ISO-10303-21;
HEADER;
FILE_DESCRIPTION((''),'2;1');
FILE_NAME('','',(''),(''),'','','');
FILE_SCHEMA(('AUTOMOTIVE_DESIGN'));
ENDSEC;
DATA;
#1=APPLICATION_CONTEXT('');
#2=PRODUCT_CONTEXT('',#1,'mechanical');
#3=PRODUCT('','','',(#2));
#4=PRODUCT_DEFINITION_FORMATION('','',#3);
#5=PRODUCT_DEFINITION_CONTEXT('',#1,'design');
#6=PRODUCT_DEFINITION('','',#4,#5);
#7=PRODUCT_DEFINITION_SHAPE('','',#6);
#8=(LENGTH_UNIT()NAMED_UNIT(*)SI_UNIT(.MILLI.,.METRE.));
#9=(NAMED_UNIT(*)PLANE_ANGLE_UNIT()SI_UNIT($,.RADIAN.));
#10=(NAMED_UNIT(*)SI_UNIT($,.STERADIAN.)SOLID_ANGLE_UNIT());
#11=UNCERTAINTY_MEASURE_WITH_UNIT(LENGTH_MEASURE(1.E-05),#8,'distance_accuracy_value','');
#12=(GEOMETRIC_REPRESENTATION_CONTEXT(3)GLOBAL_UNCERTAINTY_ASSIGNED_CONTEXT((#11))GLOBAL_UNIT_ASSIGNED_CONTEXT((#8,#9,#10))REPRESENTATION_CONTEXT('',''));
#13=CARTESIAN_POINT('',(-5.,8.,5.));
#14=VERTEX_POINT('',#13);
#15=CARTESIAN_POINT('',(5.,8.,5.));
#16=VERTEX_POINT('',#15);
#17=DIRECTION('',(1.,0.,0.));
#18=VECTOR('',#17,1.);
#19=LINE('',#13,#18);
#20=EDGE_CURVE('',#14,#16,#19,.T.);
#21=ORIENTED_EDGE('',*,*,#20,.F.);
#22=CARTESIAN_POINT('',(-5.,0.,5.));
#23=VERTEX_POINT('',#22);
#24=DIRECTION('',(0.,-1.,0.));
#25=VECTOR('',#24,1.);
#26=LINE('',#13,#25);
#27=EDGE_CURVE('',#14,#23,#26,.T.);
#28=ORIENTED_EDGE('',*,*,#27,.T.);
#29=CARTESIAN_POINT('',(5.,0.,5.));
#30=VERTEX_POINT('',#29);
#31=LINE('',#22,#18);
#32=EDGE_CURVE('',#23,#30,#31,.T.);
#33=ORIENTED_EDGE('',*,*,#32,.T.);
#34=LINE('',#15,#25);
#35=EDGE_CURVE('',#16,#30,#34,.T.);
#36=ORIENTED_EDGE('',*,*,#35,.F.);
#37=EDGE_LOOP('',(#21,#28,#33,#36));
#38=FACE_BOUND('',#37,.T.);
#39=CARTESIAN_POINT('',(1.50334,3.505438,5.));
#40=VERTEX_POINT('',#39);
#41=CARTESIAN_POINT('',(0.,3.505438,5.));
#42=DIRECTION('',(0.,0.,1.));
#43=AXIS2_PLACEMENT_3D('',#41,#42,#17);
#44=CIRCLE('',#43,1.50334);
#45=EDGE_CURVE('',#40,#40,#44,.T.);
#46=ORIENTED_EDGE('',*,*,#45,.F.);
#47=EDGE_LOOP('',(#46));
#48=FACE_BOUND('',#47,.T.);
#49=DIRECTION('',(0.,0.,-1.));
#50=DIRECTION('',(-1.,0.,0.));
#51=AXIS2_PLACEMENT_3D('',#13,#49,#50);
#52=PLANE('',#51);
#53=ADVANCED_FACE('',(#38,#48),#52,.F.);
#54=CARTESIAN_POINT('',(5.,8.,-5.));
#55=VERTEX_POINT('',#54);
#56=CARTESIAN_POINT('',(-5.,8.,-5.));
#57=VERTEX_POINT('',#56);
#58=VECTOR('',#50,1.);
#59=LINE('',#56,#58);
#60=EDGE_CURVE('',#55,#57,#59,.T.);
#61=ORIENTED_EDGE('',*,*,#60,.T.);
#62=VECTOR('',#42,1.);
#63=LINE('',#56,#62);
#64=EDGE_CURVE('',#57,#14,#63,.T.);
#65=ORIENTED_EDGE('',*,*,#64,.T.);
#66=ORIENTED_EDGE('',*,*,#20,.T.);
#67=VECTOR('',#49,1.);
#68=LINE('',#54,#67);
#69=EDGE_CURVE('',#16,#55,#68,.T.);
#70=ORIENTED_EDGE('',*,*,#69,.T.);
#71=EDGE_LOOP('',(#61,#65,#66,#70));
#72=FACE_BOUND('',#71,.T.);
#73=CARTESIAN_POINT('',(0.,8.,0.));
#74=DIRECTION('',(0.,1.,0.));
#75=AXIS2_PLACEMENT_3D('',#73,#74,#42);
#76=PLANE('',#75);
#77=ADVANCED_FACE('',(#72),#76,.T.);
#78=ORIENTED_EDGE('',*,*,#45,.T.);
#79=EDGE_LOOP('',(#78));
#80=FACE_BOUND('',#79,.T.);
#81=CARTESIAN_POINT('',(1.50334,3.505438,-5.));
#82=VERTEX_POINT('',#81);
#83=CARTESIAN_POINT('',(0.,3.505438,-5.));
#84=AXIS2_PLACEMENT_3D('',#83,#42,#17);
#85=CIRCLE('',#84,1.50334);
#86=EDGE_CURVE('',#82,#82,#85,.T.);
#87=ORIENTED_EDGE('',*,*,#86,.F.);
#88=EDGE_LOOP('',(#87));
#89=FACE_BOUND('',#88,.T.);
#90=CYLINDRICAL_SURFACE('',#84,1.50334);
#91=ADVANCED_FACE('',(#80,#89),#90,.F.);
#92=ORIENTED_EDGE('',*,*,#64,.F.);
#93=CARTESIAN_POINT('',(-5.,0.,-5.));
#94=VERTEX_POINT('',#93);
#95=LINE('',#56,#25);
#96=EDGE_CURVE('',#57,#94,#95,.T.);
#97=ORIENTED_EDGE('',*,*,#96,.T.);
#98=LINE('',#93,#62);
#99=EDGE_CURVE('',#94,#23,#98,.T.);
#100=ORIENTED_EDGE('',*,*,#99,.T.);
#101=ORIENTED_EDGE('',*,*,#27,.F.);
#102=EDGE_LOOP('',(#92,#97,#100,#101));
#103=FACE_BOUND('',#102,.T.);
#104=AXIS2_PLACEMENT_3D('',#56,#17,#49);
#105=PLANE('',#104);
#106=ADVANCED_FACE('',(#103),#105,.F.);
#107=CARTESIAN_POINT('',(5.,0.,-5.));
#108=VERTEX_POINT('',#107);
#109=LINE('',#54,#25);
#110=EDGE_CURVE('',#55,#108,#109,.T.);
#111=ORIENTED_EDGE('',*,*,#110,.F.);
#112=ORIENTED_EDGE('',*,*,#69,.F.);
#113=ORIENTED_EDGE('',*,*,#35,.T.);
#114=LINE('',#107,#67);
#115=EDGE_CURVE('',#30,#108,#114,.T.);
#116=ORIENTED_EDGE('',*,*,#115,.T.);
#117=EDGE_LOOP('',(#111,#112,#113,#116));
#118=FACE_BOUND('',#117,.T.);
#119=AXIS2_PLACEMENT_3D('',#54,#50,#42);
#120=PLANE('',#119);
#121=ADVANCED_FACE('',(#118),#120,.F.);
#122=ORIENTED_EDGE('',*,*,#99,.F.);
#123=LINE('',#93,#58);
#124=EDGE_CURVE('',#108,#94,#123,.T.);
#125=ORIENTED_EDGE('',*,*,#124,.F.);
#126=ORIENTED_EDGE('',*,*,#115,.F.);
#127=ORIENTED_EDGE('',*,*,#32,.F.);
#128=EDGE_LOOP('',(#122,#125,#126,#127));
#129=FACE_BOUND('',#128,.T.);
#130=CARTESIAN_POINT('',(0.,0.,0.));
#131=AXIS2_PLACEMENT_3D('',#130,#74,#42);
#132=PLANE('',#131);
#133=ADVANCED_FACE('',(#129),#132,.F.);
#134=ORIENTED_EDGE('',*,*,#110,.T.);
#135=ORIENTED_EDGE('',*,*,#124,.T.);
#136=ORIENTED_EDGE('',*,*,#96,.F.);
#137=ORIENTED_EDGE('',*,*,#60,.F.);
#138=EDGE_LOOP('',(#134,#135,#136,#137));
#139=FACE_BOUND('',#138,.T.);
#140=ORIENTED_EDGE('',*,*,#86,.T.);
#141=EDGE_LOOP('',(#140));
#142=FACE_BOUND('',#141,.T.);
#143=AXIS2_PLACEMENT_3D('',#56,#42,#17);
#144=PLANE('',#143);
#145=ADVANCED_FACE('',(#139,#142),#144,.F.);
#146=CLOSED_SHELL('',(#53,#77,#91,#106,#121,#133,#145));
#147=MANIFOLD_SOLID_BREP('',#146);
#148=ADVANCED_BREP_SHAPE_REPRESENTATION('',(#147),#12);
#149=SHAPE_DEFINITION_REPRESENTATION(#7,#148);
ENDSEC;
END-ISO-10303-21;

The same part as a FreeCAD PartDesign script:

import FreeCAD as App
import Part
import Sketcher

doc = App.newDocument("Part")
body = doc.addObject("PartDesign::Body", "Body")

# Sketch on XZ plane
sketch1 = body.newObject("Sketcher::SketchObject", "Sketch")
sketch1.AttachmentSupport = (doc.getObject("XZ_Plane"), [""])
sketch1.MapMode = "FlatFace"
sketch1.addGeometry(Part.LineSegment(App.Vector(-5, -5, 0), App.Vector(-5, 5, 0)), False)
sketch1.addGeometry(Part.LineSegment(App.Vector(-5, 5, 0), App.Vector(5, 5, 0)), False)
sketch1.addGeometry(Part.LineSegment(App.Vector(5, 5, 0), App.Vector(5, -5, 0)), False)
sketch1.addGeometry(Part.LineSegment(App.Vector(5, -5, 0), App.Vector(-5, -5, 0)), False)
sketch1.addConstraint(Sketcher.Constraint("Coincident", 0, 2, 1, 1))
sketch1.addConstraint(Sketcher.Constraint("Coincident", 1, 2, 2, 1))
sketch1.addConstraint(Sketcher.Constraint("Coincident", 2, 2, 3, 1))
sketch1.addConstraint(Sketcher.Constraint("Coincident", 3, 2, 0, 1))
sketch1.addConstraint(Sketcher.Constraint("Vertical", 0))
sketch1.addConstraint(Sketcher.Constraint("Horizontal", 1))
sketch1.addConstraint(Sketcher.Constraint("Vertical", 2))
sketch1.addConstraint(Sketcher.Constraint("Horizontal", 3))
sketch1.addConstraint(Sketcher.Constraint("Symmetric", 0, 2, 2, 2, -1, 1))
sketch1.addConstraint(Sketcher.Constraint("Equal", 3, 0))
sketch1.addConstraint(Sketcher.Constraint("DistanceX", 1, 1, 1, 2, 10.0))
pad1 = body.newObject("PartDesign::Pad", "Pad")
pad1.Profile = sketch1
pad1.Length = 8
pad1.Reversed = True

# Sketch on XY plane
sketch2 = body.newObject("Sketcher::SketchObject", "Sketch001")
sketch2.AttachmentSupport = (doc.getObject("XY_Plane"), [""])
sketch2.MapMode = "FlatFace"
sketch2.AttachmentOffset = App.Placement(App.Vector(0, 0, 5), App.Rotation())
sketch2.addGeometry(Part.Circle(App.Vector(0, 3.5, 0), App.Vector(0, 0, 1), 1.5), False)
sketch2.addConstraint(Sketcher.Constraint("PointOnObject", 0, 3, -2))
sketch2.addConstraint(Sketcher.Constraint("Diameter", 0, 3.006679))
sketch2.addConstraint(Sketcher.Constraint("DistanceY", -1, 1, 0, 3, 3.505438))
pocket1 = body.newObject("PartDesign::Pocket", "Pocket")
pocket1.Profile = sketch2
pocket1.Length = 10

doc.recompute()
